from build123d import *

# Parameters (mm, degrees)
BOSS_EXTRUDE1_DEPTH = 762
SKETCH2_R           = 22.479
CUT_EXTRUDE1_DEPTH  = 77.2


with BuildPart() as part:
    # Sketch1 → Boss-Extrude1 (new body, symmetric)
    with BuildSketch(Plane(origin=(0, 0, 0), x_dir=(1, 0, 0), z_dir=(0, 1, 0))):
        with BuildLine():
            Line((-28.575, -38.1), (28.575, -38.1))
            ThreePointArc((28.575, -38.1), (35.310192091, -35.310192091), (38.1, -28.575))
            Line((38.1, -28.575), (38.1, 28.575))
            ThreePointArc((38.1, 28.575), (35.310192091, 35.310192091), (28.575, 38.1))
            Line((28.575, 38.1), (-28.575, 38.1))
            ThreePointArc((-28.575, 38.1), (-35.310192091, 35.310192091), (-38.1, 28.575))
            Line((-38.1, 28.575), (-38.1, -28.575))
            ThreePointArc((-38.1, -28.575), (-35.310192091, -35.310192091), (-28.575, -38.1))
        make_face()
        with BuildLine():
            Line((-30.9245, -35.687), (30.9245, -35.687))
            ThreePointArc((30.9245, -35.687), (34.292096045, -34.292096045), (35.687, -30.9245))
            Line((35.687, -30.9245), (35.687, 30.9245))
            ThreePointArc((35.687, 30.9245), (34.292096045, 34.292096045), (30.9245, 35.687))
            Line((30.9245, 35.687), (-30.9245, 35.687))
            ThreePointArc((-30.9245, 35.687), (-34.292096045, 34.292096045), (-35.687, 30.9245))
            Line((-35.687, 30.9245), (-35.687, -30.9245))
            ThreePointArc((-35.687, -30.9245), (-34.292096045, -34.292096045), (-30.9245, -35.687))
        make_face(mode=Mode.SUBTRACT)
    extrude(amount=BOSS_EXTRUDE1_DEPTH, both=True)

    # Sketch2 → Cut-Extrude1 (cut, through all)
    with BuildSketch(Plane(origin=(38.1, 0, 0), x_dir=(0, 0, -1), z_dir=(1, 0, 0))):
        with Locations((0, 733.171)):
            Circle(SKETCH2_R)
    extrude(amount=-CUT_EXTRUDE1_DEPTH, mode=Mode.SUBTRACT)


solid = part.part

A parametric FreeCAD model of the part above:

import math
import FreeCAD as App
import Part
import Sketcher
Q = App.Units.Quantity

doc = App.newDocument("Part")
body = doc.addObject("PartDesign::Body", "Body")

sketch1 = body.newObject("Sketcher::SketchObject", "Sketch")
sketch1.AttachmentSupport = (doc.getObject("XZ_Plane"), [""])
sketch1.MapMode = "FlatFace"
sketch1.addGeometry([
    Part.LineSegment(App.Vector(-28.6, 38.1, 0), App.Vector(28.6, 38.1, 0)),
    Part.ArcOfCircle(Part.Circle(App.Vector(28.6, 28.6, 0), App.Vector(0, 0, 1), 9.5), math.radians(0), math.radians(90)),
    Part.LineSegment(App.Vector(38.1, 28.6, 0), App.Vector(38.1, -28.6, 0)),
    Part.ArcOfCircle(Part.Circle(App.Vector(28.6, -28.6, 0), App.Vector(0, 0, 1), 9.5), math.radians(-90), math.radians(0)),
    Part.LineSegment(App.Vector(28.6, -38.1, 0), App.Vector(-28.6, -38.1, 0)),
    Part.ArcOfCircle(Part.Circle(App.Vector(-28.6, -28.6, 0), App.Vector(0, 0, 1), 9.5), math.radians(180), math.radians(270)),
    Part.LineSegment(App.Vector(-38.1, -28.6, 0), App.Vector(-38.1, 28.6, 0)),
    Part.ArcOfCircle(Part.Circle(App.Vector(-28.6, 28.6, 0), App.Vector(0, 0, 1), 9.5), math.radians(90), math.radians(180)),
    Part.LineSegment(App.Vector(30.9, 35.7, 0), App.Vector(-30.9, 35.7, 0)),
    Part.ArcOfCircle(Part.Circle(App.Vector(-30.9, 30.9, 0), App.Vector(0, 0, 1), 4.8), math.radians(90), math.radians(180)),
    Part.LineSegment(App.Vector(-35.7, 30.9, 0), App.Vector(-35.7, -30.9, 0)),
    Part.ArcOfCircle(Part.Circle(App.Vector(-30.9, -30.9, 0), App.Vector(0, 0, 1), 4.8), math.radians(-180), math.radians(-90)),
    Part.LineSegment(App.Vector(-30.9, -35.7, 0), App.Vector(30.9, -35.7, 0)),
    Part.ArcOfCircle(Part.Circle(App.Vector(30.9, -30.9, 0), App.Vector(0, 0, 1), 4.8), math.radians(-90), math.radians(0)),
    Part.LineSegment(App.Vector(35.7, -30.9, 0), App.Vector(35.7, 30.9, 0)),
    Part.ArcOfCircle(Part.Circle(App.Vector(30.9, 30.9, 0), App.Vector(0, 0, 1), 4.8), math.radians(0), math.radians(90)),
], False)
sketch1.addConstraint([
    Sketcher.Constraint("Tangent", 0, 2, 1, 2),
    Sketcher.Constraint("Tangent", 1, 1, 2, 1),
    Sketcher.Constraint("Tangent", 2, 2, 3, 2),
    Sketcher.Constraint("Tangent", 3, 1, 4, 1),
    Sketcher.Constraint("Tangent", 4, 2, 5, 2),
    Sketcher.Constraint("Tangent", 5, 1, 6, 1),
    Sketcher.Constraint("Tangent", 6, 2, 7, 2),
    Sketcher.Constraint("Tangent", 7, 1, 0, 1),
    Sketcher.Constraint("Tangent", 8, 2, 9, 1),
    Sketcher.Constraint("Tangent", 9, 2, 10, 1),
    Sketcher.Constraint("Tangent", 10, 2, 11, 1),
    Sketcher.Constraint("Tangent", 11, 2, 12, 1),
    Sketcher.Constraint("Tangent", 12, 2, 13, 1),
    Sketcher.Constraint("Tangent", 13, 2, 14, 1),
    Sketcher.Constraint("Tangent", 14, 2, 15, 1),
    Sketcher.Constraint("Tangent", 15, 2, 8, 1),
    Sketcher.Constraint("Horizontal", 0),
    Sketcher.Constraint("Vertical", 2),
    Sketcher.Constraint("Horizontal", 4),
    Sketcher.Constraint("Vertical", 6),
    Sketcher.Constraint("Horizontal", 8),
    Sketcher.Constraint("Vertical", 10),
    Sketcher.Constraint("Horizontal", 12),
    Sketcher.Constraint("Vertical", 14),
    Sketcher.Constraint("Equal", 1, 3),
    Sketcher.Constraint("Equal", 3, 5),
    Sketcher.Constraint("Equal", 5, 7),
    Sketcher.Constraint("Equal", 9, 11),
    Sketcher.Constraint("Equal", 11, 13),
    Sketcher.Constraint("Equal", 13, 15),
    Sketcher.Constraint("Symmetric", 1, 3, 5, 3, -1, 1),
    Sketcher.Constraint("Symmetric", 9, 3, 13, 3, -1, 1),
    Sketcher.Constraint("Equal", 4, 2),
    Sketcher.Constraint("Equal", 12, 10),
    Sketcher.Constraint("Radius", 1, Q("0.375 in")),
    Sketcher.Constraint("Radius", 9, Q("0.1875 in")),
    Sketcher.Constraint("DistanceX", 0, 1, 0, 2, Q("2.25 in")),
    Sketcher.Constraint("DistanceX", 8, 2, 8, 1, Q("2.435 in")),
])
pad1 = body.newObject("PartDesign::Pad", "Pad")
pad1.Profile = sketch1
pad1.Length = Q("60 in")
pad1.Midplane = True

sketch2 = body.newObject("Sketcher::SketchObject", "Sketch001")
sketch2.AttachmentSupport = (doc.getObject("YZ_Plane"), [""])
sketch2.MapMode = "FlatFace"
sketch2.AttachmentOffset = App.Placement(App.Vector(0, 0, 1.5 * 25.4), App.Rotation())
sketch2.addGeometry(Part.Circle(App.Vector(733, 0, 0), App.Vector(0, 0, 1), 22), False)
sketch2.addConstraint([
    Sketcher.Constraint("PointOnObject", 0, 3, -1),
    Sketcher.Constraint("Diameter", 0, Q("1.77 in")),
    Sketcher.Constraint("DistanceX", -1, 1, 0, 3, Q("28.865 in")),
])
pocket1 = body.newObject("PartDesign::Pocket", "Pocket")
pocket1.Profile = sketch2
pocket1.Type = "ThroughAll"

doc.recompute()
